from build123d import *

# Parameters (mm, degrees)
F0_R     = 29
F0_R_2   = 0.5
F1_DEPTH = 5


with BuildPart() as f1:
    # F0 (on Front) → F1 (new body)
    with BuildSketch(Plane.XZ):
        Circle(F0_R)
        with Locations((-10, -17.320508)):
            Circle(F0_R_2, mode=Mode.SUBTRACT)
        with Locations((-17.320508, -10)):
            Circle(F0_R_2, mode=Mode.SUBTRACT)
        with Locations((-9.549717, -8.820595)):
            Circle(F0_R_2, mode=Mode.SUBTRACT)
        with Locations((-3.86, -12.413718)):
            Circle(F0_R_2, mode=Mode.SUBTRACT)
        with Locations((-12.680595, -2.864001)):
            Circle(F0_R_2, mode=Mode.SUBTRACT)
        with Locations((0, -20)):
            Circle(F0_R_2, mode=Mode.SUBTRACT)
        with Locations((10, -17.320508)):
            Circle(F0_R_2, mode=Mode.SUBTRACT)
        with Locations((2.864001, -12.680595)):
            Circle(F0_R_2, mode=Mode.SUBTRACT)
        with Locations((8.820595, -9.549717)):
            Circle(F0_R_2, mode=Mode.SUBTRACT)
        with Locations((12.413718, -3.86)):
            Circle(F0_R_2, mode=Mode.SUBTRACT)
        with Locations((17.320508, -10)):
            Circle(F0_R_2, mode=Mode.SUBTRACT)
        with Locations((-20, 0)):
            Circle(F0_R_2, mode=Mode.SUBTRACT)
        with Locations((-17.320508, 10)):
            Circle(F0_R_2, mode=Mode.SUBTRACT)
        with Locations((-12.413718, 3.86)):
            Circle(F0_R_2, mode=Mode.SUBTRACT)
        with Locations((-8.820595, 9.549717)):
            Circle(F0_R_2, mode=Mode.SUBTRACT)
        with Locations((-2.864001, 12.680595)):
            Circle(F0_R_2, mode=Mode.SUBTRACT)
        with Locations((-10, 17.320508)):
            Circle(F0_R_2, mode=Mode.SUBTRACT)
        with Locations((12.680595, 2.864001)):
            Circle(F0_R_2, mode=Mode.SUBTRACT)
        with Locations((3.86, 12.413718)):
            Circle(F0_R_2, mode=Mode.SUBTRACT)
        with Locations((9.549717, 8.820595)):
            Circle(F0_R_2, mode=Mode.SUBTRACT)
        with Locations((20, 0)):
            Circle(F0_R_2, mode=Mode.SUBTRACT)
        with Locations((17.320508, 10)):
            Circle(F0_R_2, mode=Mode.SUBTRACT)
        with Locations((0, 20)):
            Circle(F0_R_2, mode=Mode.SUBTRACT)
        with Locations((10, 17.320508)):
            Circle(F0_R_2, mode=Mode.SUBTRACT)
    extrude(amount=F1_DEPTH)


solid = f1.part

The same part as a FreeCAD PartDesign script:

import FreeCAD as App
import Part
import Sketcher
from FreeCAD import Vector
Q = App.Units.Quantity

doc = App.newDocument("Part")
body = doc.addObject("PartDesign::Body", "Body")

sketch1 = body.newObject("Sketcher::SketchObject", "Sketch")
sketch1.AttachmentSupport = (doc.getObject("XZ_Plane"), [""])
sketch1.MapMode = "FlatFace"
sketch1.addGeometry([
    Part.Circle(Vector(0, 0, 0), Vector(0, 0, 1), 29),
    Part.Circle(Vector(-10, -17.3, 0), Vector(0, 0, 1), 0.5),
    Part.Circle(Vector(-3.9, -12.4, 0), Vector(0, 0, 1), 0.5),
    Part.Circle(Vector(-17.3, -10, 0), Vector(0, 0, 1), 0.5),
    Part.Circle(Vector(-12.7, -2.9, 0), Vector(0, 0, 1), 0.5),
    Part.Circle(Vector(-9.5, -8.8, 0), Vector(0, 0, 1), 0.5),
    Part.Circle(Vector(0, -20, 0), Vector(0, 0, 1), 0.5),
    Part.Circle(Vector(10, -17.3, 0), Vector(0, 0, 1), 0.5),
    Part.Circle(Vector(2.9, -12.7, 0), Vector(0, 0, 1), 0.5),
    Part.Circle(Vector(8.8, -9.5, 0), Vector(0, 0, 1), 0.5),
    Part.Circle(Vector(17.3, -10, 0), Vector(0, 0, 1), 0.5),
    Part.Circle(Vector(12.4, -3.9, 0), Vector(0, 0, 1), 0.5),
    Part.Circle(Vector(-20, 0, 0), Vector(0, 0, 1), 0.5),
    Part.Circle(Vector(-12.4, 3.9, 0), Vector(0, 0, 1), 0.5),
    Part.Circle(Vector(-17.3, 10, 0), Vector(0, 0, 1), 0.5),
    Part.Circle(Vector(-8.8, 9.5, 0), Vector(0, 0, 1), 0.5),
    Part.Circle(Vector(-2.9, 12.7, 0), Vector(0, 0, 1), 0.5),
    Part.Circle(Vector(-10, 17.3, 0), Vector(0, 0, 1), 0.5),
    Part.Circle(Vector(9.5, 8.8, 0), Vector(0, 0, 1), 0.5),
    Part.Circle(Vector(12.7, 2.9, 0), Vector(0, 0, 1), 0.5),
    Part.Circle(Vector(20, 0, 0), Vector(0, 0, 1), 0.5),
    Part.Circle(Vector(17.3, 10, 0), Vector(0, 0, 1), 0.5),
    Part.Circle(Vector(3.9, 12.4, 0), Vector(0, 0, 1), 0.5),
    Part.Circle(Vector(0, 20, 0), Vector(0, 0, 1), 0.5),
    Part.Circle(Vector(10, 17.3, 0), Vector(0, 0, 1), 0.5),
], False)
sketch1.addConstraint([
    Sketcher.Constraint("Coincident", 0, 3, -1, 1),
    Sketcher.Constraint("Equal", 1, 2),
    Sketcher.Constraint("Equal", 2, 3),
    Sketcher.Constraint("Equal", 3, 4),
    Sketcher.Constraint("Equal", 4, 5),
    Sketcher.Constraint("Equal", 5, 6),
    Sketcher.Constraint("Equal", 6, 7),
    Sketcher.Constraint("Equal", 7, 8),
    Sketcher.Constraint("Equal", 8, 9),
    Sketcher.Constraint("Equal", 9, 10),
    Sketcher.Constraint("Equal", 10, 11),
    Sketcher.Constraint("Equal", 11, 12),
    Sketcher.Constraint("Equal", 12, 13),
    Sketcher.Constraint("Equal", 13, 14),
    Sketcher.Constraint("Equal", 14, 15),
    Sketcher.Constraint("Equal", 15, 16),
    Sketcher.Constraint("Equal", 16, 17),
    Sketcher.Constraint("Equal", 17, 18),
    Sketcher.Constraint("Equal", 18, 19),
    Sketcher.Constraint("Equal", 19, 20),
    Sketcher.Constraint("Equal", 20, 21),
    Sketcher.Constraint("Equal", 21, 22),
    Sketcher.Constraint("Equal", 22, 23),
    Sketcher.Constraint("Equal", 23, 24),
    Sketcher.Constraint("Symmetric", 11, 3, 13, 3, -1, 1),
    Sketcher.Constraint("Symmetric", 10, 3, 14, 3, -1, 1),
    Sketcher.Constraint("Symmetric", 9, 3, 15, 3, -1, 1),
    Sketcher.Constraint("Symmetric", 8, 3, 16, 3, -1, 1),
    Sketcher.Constraint("Symmetric", 7, 3, 17, 3, -1, 1),
    Sketcher.Constraint("Symmetric", 5, 3, 18, 3, -1, 1),
    Sketcher.Constraint("Symmetric", 4, 3, 19, 3, -1, 1),
    Sketcher.Constraint("Symmetric", 12, 3, 20, 3, -1, 1),
    Sketcher.Constraint("Symmetric", 3, 3, 21, 3, -1, 1),
    Sketcher.Constraint("Symmetric", 2, 3, 22, 3, -1, 1),
    Sketcher.Constraint("Symmetric", 6, 3, 23, 3, -1, 1),
    Sketcher.Constraint("Symmetric", 1, 3, 24, 3, -1, 1),
    Sketcher.Constraint("Symmetric", 1, 3, 7, 3, -2),
    Sketcher.Constraint("Symmetric", 3, 3, 10, 3, -2),
    Sketcher.Constraint("PointOnObject", 6, 3, -2),
    Sketcher.Constraint("PointOnObject", 12, 3, -1),
    Sketcher.Constraint("Diameter", 0, Q("58 mm")),
    Sketcher.Constraint("Diameter", 1, Q("1 mm")),
    Sketcher.Constraint("DistanceX", 1, 3, -1, 1, Q("10 mm")),
    Sketcher.Constraint("DistanceY", 3, 3, -1, 1, Q("10 mm")),
    Sketcher.Constraint("DistanceY", 6, 3, -1, 1, Q("20 mm")),
    Sketcher.Constraint("DistanceX", 12, 3, -1, 1, Q("20 mm")),
    Sketcher.Constraint("DistanceX", 2, 3, -1, 1, Q("3.86 mm")),
    Sketcher.Constraint("DistanceY", 11, 3, -1, 1, Q("3.86 mm")),
    Sketcher.Constraint("DistanceY", 8, 3, 5, 3, Q("3.86 mm")),
    Sketcher.Constraint("DistanceX", 4, 3, 15, 3, Q("3.86 mm")),
    Sketcher.Constraint("DistanceY", 4, 3, -1, 1, Q("2.864001 mm")),
    Sketcher.Constraint("DistanceX", -1, 1, 8, 3, Q("2.864001 mm")),
    Sketcher.Constraint("DistanceY", 2, 3, 9, 3, Q("2.864001 mm")),
    Sketcher.Constraint("DistanceX", 13, 3, 5, 3, Q("2.864001 mm")),
    Sketcher.Constraint("DistanceY", 1, 3, -1, 1, Q("17.320508 mm")),
    Sketcher.Constraint("DistanceX", 3, 3, -1, 1, Q("17.320508 mm")),
    Sketcher.Constraint("DistanceY", 1, 3, 2, 3, Q("4.90679 mm")),
    Sketcher.Constraint("DistanceX", 4, 3, 5, 3, Q("3.130878 mm")),
    Sketcher.Constraint("DistanceX", 3, 3, 5, 3, Q("7.770791 mm")),
    Sketcher.Constraint("DistanceY", 8, 3, 9, 3, Q("3.130878 mm")),
])
pad1 = body.newObject("PartDesign::Pad", "Pad")
pad1.Profile = sketch1
pad1.Length = 5

doc.recompute()
